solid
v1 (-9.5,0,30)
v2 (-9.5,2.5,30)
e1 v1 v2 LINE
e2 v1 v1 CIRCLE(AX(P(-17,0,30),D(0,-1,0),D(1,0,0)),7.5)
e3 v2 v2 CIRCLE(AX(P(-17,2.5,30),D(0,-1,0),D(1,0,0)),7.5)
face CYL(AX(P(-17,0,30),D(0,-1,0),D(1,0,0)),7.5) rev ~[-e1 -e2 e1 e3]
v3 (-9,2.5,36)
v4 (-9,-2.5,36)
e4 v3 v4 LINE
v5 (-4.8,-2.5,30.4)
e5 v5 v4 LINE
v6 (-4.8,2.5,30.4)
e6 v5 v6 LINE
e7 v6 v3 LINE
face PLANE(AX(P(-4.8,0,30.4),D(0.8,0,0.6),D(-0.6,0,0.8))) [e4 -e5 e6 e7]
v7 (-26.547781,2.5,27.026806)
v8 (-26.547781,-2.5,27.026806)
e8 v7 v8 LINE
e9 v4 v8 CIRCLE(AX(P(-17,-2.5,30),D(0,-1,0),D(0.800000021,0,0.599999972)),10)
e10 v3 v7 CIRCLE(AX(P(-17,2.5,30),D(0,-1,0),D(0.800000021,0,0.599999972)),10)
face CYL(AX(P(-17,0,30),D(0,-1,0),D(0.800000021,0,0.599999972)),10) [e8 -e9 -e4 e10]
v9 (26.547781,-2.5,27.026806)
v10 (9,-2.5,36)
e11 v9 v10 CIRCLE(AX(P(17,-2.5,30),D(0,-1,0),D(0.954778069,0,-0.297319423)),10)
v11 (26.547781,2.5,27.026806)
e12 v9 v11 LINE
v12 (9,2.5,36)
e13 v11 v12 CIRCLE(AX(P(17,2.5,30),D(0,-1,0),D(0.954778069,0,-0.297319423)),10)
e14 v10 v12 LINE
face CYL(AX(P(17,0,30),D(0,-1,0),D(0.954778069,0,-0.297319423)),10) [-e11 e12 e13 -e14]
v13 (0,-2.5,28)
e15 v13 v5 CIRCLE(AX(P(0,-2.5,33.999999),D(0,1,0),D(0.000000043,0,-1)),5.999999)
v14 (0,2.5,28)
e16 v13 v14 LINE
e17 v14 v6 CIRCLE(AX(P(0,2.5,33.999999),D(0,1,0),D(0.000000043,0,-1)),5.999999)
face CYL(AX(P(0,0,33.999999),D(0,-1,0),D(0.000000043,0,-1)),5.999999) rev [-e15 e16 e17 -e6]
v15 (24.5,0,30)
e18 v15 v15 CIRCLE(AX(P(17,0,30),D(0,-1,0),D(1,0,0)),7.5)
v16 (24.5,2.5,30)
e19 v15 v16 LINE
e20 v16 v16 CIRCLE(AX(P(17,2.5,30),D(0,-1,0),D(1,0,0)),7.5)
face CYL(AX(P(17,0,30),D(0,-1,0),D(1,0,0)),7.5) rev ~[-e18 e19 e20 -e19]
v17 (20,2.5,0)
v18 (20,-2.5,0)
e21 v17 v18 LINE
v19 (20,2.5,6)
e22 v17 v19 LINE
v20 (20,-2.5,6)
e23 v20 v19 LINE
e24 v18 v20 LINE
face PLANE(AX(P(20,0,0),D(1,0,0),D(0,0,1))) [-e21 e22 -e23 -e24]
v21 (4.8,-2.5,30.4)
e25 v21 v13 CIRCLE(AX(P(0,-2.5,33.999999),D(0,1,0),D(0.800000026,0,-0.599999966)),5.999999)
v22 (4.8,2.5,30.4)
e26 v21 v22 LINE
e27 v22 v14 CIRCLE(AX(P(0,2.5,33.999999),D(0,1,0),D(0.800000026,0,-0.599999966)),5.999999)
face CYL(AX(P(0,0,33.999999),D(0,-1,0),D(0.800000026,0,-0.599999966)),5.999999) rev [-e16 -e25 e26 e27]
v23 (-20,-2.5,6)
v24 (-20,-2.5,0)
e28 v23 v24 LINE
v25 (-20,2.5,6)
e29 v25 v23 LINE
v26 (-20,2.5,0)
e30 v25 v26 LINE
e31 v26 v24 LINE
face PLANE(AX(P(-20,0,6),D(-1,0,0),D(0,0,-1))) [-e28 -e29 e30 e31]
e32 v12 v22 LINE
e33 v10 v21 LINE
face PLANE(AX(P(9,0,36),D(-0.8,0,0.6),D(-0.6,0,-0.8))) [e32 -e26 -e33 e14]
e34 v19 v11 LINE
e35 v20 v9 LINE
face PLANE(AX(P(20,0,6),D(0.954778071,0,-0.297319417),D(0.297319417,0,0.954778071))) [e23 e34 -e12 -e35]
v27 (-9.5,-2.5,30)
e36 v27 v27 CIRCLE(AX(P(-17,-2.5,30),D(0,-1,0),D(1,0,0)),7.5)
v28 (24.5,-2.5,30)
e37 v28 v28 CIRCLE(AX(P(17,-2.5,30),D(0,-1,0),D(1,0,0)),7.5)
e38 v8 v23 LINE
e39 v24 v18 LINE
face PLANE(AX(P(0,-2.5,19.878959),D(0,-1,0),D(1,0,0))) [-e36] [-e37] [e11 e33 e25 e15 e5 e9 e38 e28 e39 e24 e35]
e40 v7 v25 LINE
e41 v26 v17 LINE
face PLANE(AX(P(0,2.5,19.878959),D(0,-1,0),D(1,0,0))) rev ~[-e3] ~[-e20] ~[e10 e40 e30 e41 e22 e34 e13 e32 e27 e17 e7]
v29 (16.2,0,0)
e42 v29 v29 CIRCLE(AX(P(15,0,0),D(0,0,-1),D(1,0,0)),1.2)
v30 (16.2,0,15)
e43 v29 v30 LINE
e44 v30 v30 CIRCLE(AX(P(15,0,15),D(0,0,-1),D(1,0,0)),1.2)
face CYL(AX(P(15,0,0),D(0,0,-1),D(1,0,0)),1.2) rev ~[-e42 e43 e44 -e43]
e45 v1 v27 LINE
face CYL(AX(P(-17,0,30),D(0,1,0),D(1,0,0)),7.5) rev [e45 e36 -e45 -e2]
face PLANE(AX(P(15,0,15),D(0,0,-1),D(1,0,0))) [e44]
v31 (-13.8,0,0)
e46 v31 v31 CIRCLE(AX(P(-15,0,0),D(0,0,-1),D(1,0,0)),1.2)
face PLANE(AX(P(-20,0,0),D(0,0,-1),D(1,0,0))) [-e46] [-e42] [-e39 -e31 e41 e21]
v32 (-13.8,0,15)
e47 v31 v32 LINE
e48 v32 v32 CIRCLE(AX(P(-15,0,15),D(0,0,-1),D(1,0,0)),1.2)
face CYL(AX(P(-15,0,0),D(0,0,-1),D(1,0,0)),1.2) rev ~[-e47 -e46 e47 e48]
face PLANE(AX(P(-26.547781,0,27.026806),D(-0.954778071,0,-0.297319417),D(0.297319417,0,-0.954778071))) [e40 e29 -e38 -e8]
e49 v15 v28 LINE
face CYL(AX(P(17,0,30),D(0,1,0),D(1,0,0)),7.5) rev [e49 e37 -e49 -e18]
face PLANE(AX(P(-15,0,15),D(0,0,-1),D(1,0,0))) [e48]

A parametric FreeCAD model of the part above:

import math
import FreeCAD as App
import Part
import Sketcher
Q = App.Units.Quantity

doc = App.newDocument("Part")
body = doc.addObject("PartDesign::Body", "Body")

# Sketch on XZ plane
sketch1 = body.newObject("Sketcher::SketchObject", "Sketch")
sketch1.AttachmentSupport = (doc.getObject("XZ_Plane"), [""])
sketch1.MapMode = "FlatFace"
sketch1.addGeometry(Part.LineSegment(App.Vector(-5, 30, 0), App.Vector(-9, 36, 0)), False)
sketch1.addGeometry(Part.ArcOfCircle(Part.Circle(App.Vector(-17, 30, 0), App.Vector(0, 0, 1), 10), math.radians(37), math.radians(197)), False)
sketch1.addGeometry(Part.LineSegment(App.Vector(-27, 27, 0), App.Vector(-20, 6, 0)), False)
sketch1.addGeometry(Part.LineSegment(App.Vector(-20, 6, 0), App.Vector(-20, 0, 0)), False)
sketch1.addGeometry(Part.LineSegment(App.Vector(-20, 0, 0), App.Vector(20, 0, 0)), False)
sketch1.addGeometry(Part.LineSegment(App.Vector(20, 0, 0), App.Vector(20, 6, 0)), False)
sketch1.addGeometry(Part.LineSegment(App.Vector(20, 6, 0), App.Vector(27, 27, 0)), False)
sketch1.addGeometry(Part.ArcOfCircle(Part.Circle(App.Vector(17, 30, 0), App.Vector(0, 0, 1), 10), math.radians(-17), math.radians(143)), False)
sketch1.addGeometry(Part.LineSegment(App.Vector(9, 36, 0), App.Vector(5, 30, 0)), False)
sketch1.addGeometry(Part.ArcOfCircle(Part.Circle(App.Vector(0, 34, 0), App.Vector(0, 0, 1), 6), math.radians(-90), math.radians(-37)), False)
sketch1.addGeometry(Part.ArcOfCircle(Part.Circle(App.Vector(0, 34, 0), App.Vector(0, 0, 1), 6), math.radians(-143), math.radians(-90)), False)
sketch1.addGeometry(Part.Circle(App.Vector(-17, 30, 0), App.Vector(0, 0, 1), 8), False)
sketch1.addGeometry(Part.Circle(App.Vector(17, 30, 0), App.Vector(0, 0, 1), 8), False)
sketch1.addConstraint(Sketcher.Constraint("Tangent", 0, 2, 1, 1))
sketch1.addConstraint(Sketcher.Constraint("Tangent", 1, 2, 2, 1))
sketch1.addConstraint(Sketcher.Constraint("Coincident", 2, 2, 3, 1))
sketch1.addConstraint(Sketcher.Constraint("Coincident", 3, 2, 4, 1))
sketch1.addConstraint(Sketcher.Constraint("Coincident", 4, 2, 5, 1))
sketch1.addConstraint(Sketcher.Constraint("Coincident", 5, 2, 6, 1))
sketch1.addConstraint(Sketcher.Constraint("Tangent", 6, 2, 7, 1))
sketch1.addConstraint(Sketcher.Constraint("Tangent", 7, 2, 8, 1))
sketch1.addConstraint(Sketcher.Constraint("Tangent", 8, 2, 9, 2))
sketch1.addConstraint(Sketcher.Constraint("Tangent", 9, 1, 10, 2))
sketch1.addConstraint(Sketcher.Constraint("Tangent", 10, 1, 0, 1))
sketch1.addConstraint(Sketcher.Constraint("Vertical", 3))
sketch1.addConstraint(Sketcher.Constraint("Horizontal", 4))
sketch1.addConstraint(Sketcher.Constraint("Vertical", 5))
sketch1.addConstraint(Sketcher.Constraint("Coincident", 11, 3, 1, 3))
sketch1.addConstraint(Sketcher.Constraint("Coincident", 12, 3, 7, 3))
sketch1.addConstraint(Sketcher.Constraint("Equal", 1, 7))
sketch1.addConstraint(Sketcher.Constraint("Equal", 9, 10))
sketch1.addConstraint(Sketcher.Constraint("Equal", 11, 12))
sketch1.addConstraint(Sketcher.Constraint("Symmetric", 3, 2, 4, 2, -1, 1))
sketch1.addConstraint(Sketcher.Constraint("Symmetric", 1, 3, 7, 3, -2))
sketch1.addConstraint(Sketcher.Constraint("PointOnObject", 9, 3, -2))
sketch1.addConstraint(Sketcher.Constraint("PointOnObject", 9, 1, -2))
sketch1.addConstraint(Sketcher.Constraint("Horizontal", 2, 2, 5, 2))
sketch1.addConstraint(Sketcher.Constraint("Diameter", 11, Q("15 mm")))
sketch1.addConstraint(Sketcher.Constraint("Radius", 1, Q("10 mm")))
sketch1.addConstraint(Sketcher.Constraint("Radius", 9, Q("5.999999 mm")))
sketch1.addConstraint(Sketcher.Constraint("DistanceX", 4, 1, 4, 2, Q("40 mm")))
sketch1.addConstraint(Sketcher.Constraint("DistanceY", 3, 2, 3, 1, Q("6 mm")))
sketch1.addConstraint(Sketcher.Constraint("Distance", 0, Q("7 mm")))
sketch1.addConstraint(Sketcher.Constraint("DistanceX", 1, 3, -1, 1, Q("17 mm")))
sketch1.addConstraint(Sketcher.Constraint("DistanceY", -1, 1, 1, 3, Q("30 mm")))
pad1 = body.newObject("PartDesign::Pad", "Pad")
pad1.Profile = sketch1
pad1.Type = "TwoLengths"
pad1.Length = 2.5
pad1.Length2 = 2.5

# Sketch on XY plane
sketch2 = body.newObject("Sketcher::SketchObject", "Sketch001")
sketch2.AttachmentSupport = (doc.getObject("XY_Plane"), [""])
sketch2.MapMode = "FlatFace"
sketch2.addGeometry(Part.Circle(App.Vector(-15, 0, 0), App.Vector(0, 0, 1), 1.2), False)
sketch2.addGeometry(Part.Circle(App.Vector(15, 0, 0), App.Vector(0, 0, 1), 1.2), False)
sketch2.addConstraint(Sketcher.Constraint("Equal", 0, 1))
sketch2.addConstraint(Sketcher.Constraint("Symmetric", 0, 3, 1, 3, -1, 1))
sketch2.addConstraint(Sketcher.Constraint("PointOnObject", 0, 3, -1))
sketch2.addConstraint(Sketcher.Constraint("Diameter", 0, Q("2.4 mm")))
sketch2.addConstraint(Sketcher.Constraint("DistanceX", 0, 3, -1, 1, Q("15 mm")))
pocket1 = body.newObject("PartDesign::Pocket", "Pocket")
pocket1.Profile = sketch2
pocket1.Length = 15
pocket1.Reversed = True

doc.recompute()
